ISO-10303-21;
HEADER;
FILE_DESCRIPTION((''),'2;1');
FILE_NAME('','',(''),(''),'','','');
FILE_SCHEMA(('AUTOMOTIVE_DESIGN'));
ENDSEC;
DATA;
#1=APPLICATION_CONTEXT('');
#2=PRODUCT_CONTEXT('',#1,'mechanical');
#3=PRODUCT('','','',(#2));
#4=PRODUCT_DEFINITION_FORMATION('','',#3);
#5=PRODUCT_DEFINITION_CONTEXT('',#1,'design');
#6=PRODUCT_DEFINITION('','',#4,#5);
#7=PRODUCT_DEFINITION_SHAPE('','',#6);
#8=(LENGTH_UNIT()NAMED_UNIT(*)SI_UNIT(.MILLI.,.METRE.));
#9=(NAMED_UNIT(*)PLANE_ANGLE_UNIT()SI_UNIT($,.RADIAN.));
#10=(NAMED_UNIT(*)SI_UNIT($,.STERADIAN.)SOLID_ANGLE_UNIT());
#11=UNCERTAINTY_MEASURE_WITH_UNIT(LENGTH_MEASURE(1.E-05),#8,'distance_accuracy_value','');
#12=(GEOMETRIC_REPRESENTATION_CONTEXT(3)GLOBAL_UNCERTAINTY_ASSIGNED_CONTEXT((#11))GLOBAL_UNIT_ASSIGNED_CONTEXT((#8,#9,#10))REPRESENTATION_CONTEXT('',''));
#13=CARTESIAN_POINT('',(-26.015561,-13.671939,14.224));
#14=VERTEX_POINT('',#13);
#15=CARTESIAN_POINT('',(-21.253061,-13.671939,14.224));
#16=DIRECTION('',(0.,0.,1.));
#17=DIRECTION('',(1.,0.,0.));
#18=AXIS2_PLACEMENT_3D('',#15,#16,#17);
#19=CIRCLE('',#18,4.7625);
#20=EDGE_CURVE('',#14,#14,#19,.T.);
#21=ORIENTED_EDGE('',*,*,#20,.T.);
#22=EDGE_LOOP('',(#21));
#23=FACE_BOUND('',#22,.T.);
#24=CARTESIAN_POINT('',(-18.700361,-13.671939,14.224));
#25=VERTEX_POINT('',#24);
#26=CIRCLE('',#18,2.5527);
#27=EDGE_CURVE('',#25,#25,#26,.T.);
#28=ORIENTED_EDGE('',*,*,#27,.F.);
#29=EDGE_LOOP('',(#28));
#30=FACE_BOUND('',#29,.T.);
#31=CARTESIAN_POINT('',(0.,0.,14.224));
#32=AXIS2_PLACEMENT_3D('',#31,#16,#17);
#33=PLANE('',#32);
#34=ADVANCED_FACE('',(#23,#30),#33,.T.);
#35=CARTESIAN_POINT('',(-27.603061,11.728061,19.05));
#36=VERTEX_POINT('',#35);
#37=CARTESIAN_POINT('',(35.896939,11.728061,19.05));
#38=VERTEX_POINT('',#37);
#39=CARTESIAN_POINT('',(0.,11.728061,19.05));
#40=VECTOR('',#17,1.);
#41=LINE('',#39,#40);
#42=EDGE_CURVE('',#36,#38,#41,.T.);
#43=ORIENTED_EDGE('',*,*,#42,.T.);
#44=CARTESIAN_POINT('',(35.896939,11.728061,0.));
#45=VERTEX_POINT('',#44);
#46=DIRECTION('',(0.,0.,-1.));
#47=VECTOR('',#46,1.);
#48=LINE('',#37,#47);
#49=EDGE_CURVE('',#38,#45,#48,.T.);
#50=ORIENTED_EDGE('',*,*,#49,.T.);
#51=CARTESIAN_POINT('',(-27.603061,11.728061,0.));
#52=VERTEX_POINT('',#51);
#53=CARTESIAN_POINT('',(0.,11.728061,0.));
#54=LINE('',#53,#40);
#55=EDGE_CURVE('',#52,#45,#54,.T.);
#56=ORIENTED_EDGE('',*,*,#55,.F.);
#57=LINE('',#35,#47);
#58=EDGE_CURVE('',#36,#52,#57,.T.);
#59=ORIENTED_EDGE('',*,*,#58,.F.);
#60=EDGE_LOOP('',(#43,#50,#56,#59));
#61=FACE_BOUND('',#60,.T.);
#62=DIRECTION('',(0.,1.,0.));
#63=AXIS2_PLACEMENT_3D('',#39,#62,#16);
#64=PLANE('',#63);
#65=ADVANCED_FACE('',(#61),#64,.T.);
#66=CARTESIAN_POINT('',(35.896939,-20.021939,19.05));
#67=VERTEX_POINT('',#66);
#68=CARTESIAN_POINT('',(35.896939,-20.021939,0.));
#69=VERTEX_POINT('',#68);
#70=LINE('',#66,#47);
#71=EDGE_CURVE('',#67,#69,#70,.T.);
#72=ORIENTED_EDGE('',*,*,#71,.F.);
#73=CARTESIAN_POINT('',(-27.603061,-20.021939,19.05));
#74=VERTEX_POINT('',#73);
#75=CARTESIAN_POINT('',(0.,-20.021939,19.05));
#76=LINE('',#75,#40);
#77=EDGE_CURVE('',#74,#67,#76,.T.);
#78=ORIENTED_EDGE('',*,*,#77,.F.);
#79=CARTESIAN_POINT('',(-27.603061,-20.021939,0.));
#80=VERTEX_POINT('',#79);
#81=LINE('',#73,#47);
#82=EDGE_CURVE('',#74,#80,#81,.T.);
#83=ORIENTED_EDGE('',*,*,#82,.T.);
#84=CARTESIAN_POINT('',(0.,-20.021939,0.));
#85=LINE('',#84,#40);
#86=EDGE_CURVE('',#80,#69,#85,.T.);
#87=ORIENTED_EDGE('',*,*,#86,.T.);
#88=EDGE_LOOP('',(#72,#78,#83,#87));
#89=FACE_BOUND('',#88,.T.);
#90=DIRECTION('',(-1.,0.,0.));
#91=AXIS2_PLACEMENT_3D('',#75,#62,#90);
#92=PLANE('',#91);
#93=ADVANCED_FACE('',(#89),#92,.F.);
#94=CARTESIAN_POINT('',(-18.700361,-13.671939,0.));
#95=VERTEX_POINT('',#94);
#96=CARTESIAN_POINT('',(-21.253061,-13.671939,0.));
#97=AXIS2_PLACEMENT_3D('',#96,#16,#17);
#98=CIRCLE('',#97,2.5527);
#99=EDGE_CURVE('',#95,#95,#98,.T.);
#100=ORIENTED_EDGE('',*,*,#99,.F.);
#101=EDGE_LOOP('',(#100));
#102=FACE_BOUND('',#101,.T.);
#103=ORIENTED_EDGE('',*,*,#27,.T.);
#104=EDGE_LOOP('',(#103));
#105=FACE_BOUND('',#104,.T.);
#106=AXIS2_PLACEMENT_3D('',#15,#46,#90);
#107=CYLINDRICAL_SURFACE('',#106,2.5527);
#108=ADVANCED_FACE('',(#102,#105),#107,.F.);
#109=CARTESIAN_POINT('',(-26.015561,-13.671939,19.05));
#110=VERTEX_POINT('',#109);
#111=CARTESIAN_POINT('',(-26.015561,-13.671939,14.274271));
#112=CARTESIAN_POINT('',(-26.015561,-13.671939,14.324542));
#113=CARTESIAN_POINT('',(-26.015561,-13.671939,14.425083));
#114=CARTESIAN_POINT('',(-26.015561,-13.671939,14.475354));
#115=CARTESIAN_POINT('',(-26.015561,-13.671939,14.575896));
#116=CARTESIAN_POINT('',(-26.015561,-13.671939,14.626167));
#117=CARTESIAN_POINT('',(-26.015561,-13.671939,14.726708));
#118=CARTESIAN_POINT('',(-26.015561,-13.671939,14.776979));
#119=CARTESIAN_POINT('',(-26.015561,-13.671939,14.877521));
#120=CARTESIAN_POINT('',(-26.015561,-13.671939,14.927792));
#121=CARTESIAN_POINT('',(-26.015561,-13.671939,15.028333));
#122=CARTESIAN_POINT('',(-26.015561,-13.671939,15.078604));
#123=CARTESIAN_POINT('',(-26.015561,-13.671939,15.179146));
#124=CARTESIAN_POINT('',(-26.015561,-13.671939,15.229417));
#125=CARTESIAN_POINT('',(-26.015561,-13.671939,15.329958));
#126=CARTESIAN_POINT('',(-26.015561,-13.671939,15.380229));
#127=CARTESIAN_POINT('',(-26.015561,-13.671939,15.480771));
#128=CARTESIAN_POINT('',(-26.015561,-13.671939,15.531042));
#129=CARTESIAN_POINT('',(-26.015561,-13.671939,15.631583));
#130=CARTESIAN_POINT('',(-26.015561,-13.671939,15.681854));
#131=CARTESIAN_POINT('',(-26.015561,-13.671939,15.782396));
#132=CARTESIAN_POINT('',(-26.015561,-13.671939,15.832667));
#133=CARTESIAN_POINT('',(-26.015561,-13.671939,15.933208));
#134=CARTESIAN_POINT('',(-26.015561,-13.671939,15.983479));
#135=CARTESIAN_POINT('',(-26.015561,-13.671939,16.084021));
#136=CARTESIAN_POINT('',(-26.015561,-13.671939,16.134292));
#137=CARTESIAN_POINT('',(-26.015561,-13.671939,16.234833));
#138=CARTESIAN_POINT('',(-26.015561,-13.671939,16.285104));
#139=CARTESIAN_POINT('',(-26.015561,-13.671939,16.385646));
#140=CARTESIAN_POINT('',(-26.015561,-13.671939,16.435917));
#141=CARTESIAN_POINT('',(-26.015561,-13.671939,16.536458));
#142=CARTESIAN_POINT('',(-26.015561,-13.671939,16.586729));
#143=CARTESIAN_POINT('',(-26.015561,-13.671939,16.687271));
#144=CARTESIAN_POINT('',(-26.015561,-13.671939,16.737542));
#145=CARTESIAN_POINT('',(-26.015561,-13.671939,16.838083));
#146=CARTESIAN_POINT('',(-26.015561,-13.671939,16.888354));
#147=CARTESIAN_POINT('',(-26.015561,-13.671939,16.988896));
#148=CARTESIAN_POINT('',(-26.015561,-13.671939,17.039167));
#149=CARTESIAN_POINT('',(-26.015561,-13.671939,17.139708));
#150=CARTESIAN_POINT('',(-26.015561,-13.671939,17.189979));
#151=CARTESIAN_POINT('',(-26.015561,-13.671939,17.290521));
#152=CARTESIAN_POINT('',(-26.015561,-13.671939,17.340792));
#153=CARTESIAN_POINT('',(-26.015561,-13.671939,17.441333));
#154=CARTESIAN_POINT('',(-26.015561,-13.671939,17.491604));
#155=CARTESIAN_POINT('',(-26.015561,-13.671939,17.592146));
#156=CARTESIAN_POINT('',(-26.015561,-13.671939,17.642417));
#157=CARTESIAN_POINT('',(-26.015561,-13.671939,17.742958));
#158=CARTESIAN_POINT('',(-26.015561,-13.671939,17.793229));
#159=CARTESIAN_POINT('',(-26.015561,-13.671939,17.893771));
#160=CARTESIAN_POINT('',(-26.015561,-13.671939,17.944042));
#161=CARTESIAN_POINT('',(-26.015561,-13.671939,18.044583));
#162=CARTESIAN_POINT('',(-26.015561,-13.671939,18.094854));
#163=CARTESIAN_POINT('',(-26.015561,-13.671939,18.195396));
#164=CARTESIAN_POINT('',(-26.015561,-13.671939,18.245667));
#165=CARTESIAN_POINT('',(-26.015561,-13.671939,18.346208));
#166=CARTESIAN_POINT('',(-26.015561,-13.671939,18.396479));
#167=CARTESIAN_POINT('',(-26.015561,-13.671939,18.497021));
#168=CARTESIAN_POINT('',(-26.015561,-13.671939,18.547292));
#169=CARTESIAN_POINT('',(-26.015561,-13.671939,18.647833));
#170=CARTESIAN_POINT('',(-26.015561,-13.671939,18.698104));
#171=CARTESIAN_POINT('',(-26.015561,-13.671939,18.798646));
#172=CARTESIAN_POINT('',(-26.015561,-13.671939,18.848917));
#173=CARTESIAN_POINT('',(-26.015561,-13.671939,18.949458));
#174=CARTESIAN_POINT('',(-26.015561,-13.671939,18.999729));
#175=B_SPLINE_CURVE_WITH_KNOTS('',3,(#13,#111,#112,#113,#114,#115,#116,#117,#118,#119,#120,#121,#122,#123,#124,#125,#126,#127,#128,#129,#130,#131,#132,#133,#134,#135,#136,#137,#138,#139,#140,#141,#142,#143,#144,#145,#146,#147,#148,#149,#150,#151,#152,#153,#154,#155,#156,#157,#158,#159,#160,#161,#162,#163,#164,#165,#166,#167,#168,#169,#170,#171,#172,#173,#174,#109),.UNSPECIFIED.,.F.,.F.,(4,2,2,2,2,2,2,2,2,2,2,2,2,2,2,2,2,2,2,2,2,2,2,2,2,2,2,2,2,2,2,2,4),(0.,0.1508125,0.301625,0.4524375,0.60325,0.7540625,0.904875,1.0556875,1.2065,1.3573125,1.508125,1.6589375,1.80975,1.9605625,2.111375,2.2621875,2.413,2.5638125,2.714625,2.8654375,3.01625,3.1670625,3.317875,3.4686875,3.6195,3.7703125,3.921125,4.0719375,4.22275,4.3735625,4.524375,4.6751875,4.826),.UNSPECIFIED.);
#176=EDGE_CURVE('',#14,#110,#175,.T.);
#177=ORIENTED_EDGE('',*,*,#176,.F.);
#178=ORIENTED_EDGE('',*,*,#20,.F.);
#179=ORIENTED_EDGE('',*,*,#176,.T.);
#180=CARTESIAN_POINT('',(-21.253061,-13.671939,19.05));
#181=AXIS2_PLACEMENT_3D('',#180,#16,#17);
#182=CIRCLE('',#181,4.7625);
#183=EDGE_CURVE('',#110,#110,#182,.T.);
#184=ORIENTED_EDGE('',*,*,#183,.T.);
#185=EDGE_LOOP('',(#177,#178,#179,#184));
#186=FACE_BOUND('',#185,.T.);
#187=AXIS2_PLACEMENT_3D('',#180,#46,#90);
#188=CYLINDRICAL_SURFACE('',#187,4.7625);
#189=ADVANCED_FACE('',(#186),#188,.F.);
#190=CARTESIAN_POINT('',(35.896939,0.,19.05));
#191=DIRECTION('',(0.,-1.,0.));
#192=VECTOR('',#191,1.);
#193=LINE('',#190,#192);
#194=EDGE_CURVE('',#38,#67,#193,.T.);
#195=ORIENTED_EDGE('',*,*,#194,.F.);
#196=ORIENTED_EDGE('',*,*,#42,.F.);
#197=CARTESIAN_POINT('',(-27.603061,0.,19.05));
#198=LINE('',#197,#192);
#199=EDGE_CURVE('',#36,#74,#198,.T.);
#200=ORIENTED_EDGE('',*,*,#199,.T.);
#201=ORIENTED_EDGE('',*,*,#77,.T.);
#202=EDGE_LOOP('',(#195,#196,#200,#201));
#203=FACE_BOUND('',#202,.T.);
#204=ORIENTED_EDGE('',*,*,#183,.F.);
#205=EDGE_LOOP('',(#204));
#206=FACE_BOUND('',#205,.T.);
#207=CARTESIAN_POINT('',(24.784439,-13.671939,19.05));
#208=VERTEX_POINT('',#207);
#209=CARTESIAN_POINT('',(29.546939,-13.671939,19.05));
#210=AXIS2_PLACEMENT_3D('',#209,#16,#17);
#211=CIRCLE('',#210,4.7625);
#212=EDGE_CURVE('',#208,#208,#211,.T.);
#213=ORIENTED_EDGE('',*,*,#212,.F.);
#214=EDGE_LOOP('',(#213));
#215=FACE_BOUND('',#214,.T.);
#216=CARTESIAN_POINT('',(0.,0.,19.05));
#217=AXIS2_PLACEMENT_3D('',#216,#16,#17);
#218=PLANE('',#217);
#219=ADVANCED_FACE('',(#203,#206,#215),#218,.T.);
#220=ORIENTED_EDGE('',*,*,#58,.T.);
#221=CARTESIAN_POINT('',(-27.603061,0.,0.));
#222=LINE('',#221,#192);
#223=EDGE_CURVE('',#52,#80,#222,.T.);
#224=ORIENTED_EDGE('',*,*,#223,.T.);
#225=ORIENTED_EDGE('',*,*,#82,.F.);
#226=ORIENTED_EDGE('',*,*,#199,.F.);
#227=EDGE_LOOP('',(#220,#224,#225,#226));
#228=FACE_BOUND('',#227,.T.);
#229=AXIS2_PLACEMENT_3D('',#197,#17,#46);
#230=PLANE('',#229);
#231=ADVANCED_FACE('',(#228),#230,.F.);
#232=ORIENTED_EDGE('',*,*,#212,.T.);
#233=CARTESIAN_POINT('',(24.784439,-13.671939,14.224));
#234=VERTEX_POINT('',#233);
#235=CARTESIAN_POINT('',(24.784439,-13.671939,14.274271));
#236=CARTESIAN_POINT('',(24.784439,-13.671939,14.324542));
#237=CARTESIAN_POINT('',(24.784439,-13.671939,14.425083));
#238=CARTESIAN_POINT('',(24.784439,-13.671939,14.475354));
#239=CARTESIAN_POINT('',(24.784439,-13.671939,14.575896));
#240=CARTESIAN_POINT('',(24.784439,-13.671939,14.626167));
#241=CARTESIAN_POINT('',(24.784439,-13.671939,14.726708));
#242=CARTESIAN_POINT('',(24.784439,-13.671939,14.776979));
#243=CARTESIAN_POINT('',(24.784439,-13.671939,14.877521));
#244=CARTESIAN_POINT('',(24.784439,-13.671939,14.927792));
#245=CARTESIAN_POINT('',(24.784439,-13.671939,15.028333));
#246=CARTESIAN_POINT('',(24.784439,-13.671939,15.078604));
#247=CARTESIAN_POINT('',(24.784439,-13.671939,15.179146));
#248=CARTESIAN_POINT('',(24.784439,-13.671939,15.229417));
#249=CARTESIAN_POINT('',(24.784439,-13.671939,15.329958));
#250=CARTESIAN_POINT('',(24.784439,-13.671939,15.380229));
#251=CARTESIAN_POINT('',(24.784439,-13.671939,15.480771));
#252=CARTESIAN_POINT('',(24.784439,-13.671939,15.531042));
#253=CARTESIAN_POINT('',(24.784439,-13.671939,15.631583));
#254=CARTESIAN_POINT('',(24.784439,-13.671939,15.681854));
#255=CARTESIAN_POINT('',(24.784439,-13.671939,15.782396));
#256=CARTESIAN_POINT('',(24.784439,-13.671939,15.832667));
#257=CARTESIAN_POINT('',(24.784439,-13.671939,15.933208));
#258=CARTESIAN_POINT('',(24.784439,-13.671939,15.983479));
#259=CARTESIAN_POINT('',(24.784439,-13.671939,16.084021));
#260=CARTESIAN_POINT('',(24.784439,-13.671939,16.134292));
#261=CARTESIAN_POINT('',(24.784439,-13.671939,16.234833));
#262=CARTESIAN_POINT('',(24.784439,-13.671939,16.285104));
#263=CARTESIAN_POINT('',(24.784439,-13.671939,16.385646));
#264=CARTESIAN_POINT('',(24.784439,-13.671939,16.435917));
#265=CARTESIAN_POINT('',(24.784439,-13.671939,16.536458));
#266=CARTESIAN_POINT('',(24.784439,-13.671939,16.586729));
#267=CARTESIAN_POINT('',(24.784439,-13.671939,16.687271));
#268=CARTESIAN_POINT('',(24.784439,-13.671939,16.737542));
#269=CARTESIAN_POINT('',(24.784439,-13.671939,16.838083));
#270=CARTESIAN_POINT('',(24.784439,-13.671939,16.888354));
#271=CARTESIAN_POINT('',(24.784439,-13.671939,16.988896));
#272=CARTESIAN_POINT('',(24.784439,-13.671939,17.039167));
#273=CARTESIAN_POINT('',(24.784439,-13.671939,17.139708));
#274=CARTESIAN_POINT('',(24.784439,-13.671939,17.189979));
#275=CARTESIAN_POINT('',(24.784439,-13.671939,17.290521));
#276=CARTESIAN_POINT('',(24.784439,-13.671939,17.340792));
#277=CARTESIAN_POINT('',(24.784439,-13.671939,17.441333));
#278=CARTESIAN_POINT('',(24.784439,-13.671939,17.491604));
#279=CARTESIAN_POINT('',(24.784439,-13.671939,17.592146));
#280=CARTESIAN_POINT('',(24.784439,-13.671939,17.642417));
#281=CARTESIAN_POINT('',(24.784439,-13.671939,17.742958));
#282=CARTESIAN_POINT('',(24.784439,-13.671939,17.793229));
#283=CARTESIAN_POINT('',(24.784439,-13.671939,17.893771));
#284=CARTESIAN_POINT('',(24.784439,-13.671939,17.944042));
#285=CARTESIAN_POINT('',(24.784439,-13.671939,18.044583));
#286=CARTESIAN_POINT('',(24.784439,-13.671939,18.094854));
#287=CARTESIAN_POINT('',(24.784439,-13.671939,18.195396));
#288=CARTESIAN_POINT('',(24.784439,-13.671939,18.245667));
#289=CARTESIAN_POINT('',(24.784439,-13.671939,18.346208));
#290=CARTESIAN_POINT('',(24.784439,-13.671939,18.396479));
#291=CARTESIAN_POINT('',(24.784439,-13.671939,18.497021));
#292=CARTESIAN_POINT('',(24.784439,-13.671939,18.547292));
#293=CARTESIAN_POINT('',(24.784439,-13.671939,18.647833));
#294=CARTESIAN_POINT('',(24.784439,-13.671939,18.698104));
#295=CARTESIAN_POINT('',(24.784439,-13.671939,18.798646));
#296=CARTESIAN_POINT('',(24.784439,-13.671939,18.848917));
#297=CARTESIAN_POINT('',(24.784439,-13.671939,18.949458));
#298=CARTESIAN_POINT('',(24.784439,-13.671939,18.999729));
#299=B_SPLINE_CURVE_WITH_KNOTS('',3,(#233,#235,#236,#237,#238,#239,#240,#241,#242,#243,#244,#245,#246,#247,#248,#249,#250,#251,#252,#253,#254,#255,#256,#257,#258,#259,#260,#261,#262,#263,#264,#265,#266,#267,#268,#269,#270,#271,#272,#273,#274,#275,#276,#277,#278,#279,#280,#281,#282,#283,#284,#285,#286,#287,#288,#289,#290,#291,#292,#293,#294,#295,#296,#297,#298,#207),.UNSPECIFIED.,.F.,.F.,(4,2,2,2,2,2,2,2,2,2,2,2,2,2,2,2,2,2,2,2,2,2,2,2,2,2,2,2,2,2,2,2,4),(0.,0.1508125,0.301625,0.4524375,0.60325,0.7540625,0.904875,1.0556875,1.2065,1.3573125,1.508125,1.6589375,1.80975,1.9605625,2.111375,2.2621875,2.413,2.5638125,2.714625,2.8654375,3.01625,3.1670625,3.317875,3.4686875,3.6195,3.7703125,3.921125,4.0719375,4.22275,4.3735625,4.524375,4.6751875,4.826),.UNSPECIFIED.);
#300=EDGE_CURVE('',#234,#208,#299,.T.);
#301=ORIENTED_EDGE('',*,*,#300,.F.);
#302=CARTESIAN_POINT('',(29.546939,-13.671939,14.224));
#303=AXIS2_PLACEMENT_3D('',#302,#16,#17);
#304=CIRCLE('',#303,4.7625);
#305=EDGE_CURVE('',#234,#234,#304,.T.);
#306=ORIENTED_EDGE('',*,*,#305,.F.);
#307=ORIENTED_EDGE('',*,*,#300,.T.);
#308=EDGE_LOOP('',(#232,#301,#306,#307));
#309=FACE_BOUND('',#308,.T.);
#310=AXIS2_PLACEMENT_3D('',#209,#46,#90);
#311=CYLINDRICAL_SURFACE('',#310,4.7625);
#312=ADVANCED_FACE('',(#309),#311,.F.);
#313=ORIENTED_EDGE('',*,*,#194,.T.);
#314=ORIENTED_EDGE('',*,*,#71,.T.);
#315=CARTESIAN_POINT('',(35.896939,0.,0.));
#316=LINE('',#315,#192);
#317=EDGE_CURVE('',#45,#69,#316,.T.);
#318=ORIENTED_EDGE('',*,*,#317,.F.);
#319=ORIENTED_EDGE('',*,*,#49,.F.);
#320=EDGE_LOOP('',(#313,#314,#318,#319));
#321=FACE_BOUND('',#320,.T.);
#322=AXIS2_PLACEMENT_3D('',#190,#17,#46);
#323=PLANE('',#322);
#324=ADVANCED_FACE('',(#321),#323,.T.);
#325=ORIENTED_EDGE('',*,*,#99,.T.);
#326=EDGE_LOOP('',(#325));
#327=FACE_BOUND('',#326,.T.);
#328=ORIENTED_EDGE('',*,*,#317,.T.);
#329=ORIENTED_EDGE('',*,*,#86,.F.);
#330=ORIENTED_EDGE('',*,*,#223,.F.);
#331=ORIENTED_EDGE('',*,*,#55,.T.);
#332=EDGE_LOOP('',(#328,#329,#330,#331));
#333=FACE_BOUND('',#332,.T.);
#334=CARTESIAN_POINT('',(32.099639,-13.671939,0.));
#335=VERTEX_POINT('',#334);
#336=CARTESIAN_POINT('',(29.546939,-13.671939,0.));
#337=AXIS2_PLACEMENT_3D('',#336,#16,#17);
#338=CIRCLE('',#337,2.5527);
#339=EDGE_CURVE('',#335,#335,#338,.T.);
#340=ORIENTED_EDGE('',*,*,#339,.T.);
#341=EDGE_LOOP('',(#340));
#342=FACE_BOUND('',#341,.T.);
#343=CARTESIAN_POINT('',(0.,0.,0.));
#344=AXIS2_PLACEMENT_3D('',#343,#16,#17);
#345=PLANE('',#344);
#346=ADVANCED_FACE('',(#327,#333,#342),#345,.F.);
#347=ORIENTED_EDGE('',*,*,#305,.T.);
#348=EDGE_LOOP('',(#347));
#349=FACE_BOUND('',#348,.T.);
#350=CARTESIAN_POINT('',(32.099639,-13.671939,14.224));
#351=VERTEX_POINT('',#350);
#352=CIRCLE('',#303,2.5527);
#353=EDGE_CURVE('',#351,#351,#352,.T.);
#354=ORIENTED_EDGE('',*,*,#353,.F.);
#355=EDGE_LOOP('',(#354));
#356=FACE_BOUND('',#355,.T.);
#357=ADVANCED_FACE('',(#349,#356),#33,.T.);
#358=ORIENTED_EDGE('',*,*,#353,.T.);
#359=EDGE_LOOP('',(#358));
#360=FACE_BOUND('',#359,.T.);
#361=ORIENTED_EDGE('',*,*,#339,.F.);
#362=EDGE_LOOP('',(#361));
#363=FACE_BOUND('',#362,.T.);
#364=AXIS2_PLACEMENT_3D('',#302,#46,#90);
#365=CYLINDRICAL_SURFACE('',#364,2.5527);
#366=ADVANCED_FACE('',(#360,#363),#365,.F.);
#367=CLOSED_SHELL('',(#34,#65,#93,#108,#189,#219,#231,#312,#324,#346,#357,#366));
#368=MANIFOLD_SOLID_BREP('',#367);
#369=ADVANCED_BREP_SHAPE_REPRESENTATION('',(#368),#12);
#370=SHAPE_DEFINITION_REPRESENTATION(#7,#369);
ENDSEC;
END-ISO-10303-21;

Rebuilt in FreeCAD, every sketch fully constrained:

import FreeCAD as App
import Part
import Sketcher
from FreeCAD import Vector
Q = App.Units.Quantity

doc = App.newDocument("Part")
body = doc.addObject("PartDesign::Body", "Body")

sketch1 = body.newObject("Sketcher::SketchObject", "Sketch")
sketch1.AttachmentSupport = (doc.getObject("XY_Plane"), [""])
sketch1.MapMode = "FlatFace"
sketch1.addGeometry(Part.LineSegment(Vector(-27.603061, 11.728061, 0), Vector(-27.603061, -20.021939, 0)), False)
sketch1.addGeometry(Part.LineSegment(Vector(-27.603061, -20.021939, 0), Vector(35.896939, -20.021939, 0)), False)
sketch1.addGeometry(Part.LineSegment(Vector(35.896939, -20.021939, 0), Vector(35.896939, 11.728061, 0)), False)
sketch1.addGeometry(Part.LineSegment(Vector(35.896939, 11.728061, 0), Vector(-27.603061, 11.728061, 0)), False)
sketch1.addGeometry(Part.Circle(Vector(-21.253061, -13.671939, 0), Vector(0, 0, 1), 4.7625), False)
sketch1.addGeometry(Part.Circle(Vector(29.546939, -13.671939, 0), Vector(0, 0, 1), 4.7625), False)
sketch1.addConstraint(Sketcher.Constraint("Coincident", 0, 2, 1, 1))
sketch1.addConstraint(Sketcher.Constraint("Coincident", 1, 2, 2, 1))
sketch1.addConstraint(Sketcher.Constraint("Coincident", 2, 2, 3, 1))
sketch1.addConstraint(Sketcher.Constraint("Coincident", 3, 2, 0, 1))
sketch1.addConstraint(Sketcher.Constraint("Vertical", 0))
sketch1.addConstraint(Sketcher.Constraint("Horizontal", 1))
sketch1.addConstraint(Sketcher.Constraint("Vertical", 2))
sketch1.addConstraint(Sketcher.Constraint("Horizontal", 3))
sketch1.addConstraint(Sketcher.Constraint("Equal", 4, 5))
sketch1.addConstraint(Sketcher.Constraint("Horizontal", 4, 3, 5, 3))
sketch1.addConstraint(Sketcher.Constraint("Diameter", 4, Q("0.375 in")))
sketch1.addConstraint(Sketcher.Constraint("DistanceX", 1, 1, 1, 2, Q("2.5 in")))
sketch1.addConstraint(Sketcher.Constraint("DistanceX", 4, 3, 5, 3, Q("2 in")))
sketch1.addConstraint(Sketcher.Constraint("DistanceY", 5, 3, 2, 2, Q("1 in")))
sketch1.addConstraint(Sketcher.Constraint("DistanceY", 0, 2, 0, 1, Q("1.25 in")))
sketch1.addConstraint(Sketcher.Constraint("DistanceX", 0, 2, 4, 3, Q("0.25 in")))
sketch1.addConstraint(Sketcher.Constraint("DistanceX", 4, 3, -1, 1, Q("21.253061 mm")))
sketch1.addConstraint(Sketcher.Constraint("DistanceY", 4, 3, -1, 1, Q("13.671939 mm")))
pad1 = body.newObject("PartDesign::Pad", "Pad")
pad1.Profile = sketch1
pad1.Length = Q("0.75 in")

sketch2 = body.newObject("Sketcher::SketchObject", "Sketch001")
sketch2.AttachmentSupport = (doc.getObject("XY_Plane"), [""])
sketch2.MapMode = "FlatFace"
sketch2.addGeometry(Part.Circle(Vector(-21.253061, -13.671939, 0), Vector(0, 0, 1), 4.7625), False)
sketch2.addGeometry(Part.Circle(Vector(-21.253061, -13.671939, 0), Vector(0, 0, 1), 2.5527), False)
sketch2.addGeometry(Part.Circle(Vector(29.546939, -13.671939, 0), Vector(0, 0, 1), 4.7625), False)
sketch2.addGeometry(Part.Circle(Vector(29.546939, -13.671939, 0), Vector(0, 0, 1), 2.5527), False)
sketch2.addConstraint(Sketcher.Constraint("Coincident", 1, 3, 0, 3))
sketch2.addConstraint(Sketcher.Constraint("Coincident", 3, 3, 2, 3))
sketch2.addConstraint(Sketcher.Constraint("Equal", 0, 2))
sketch2.addConstraint(Sketcher.Constraint("Equal", 1, 3))
sketch2.addConstraint(Sketcher.Constraint("Horizontal", 1, 3, 2, 3))
sketch2.addConstraint(Sketcher.Constraint("Diameter", 0, Q("0.375 in")))
sketch2.addConstraint(Sketcher.Constraint("Diameter", 1, Q("0.201 in")))
sketch2.addConstraint(Sketcher.Constraint("DistanceX", 0, 3, 2, 3, Q("2 in")))
sketch2.addConstraint(Sketcher.Constraint("DistanceX", 0, 3, -1, 1, Q("21.253061 mm")))
sketch2.addConstraint(Sketcher.Constraint("DistanceY", 0, 3, -1, 1, Q("13.671939 mm")))
pad2 = body.newObject("PartDesign::Pad", "Pad001")
pad2.Profile = sketch2
pad2.Length = Q("0.56 in")

doc.recompute()
